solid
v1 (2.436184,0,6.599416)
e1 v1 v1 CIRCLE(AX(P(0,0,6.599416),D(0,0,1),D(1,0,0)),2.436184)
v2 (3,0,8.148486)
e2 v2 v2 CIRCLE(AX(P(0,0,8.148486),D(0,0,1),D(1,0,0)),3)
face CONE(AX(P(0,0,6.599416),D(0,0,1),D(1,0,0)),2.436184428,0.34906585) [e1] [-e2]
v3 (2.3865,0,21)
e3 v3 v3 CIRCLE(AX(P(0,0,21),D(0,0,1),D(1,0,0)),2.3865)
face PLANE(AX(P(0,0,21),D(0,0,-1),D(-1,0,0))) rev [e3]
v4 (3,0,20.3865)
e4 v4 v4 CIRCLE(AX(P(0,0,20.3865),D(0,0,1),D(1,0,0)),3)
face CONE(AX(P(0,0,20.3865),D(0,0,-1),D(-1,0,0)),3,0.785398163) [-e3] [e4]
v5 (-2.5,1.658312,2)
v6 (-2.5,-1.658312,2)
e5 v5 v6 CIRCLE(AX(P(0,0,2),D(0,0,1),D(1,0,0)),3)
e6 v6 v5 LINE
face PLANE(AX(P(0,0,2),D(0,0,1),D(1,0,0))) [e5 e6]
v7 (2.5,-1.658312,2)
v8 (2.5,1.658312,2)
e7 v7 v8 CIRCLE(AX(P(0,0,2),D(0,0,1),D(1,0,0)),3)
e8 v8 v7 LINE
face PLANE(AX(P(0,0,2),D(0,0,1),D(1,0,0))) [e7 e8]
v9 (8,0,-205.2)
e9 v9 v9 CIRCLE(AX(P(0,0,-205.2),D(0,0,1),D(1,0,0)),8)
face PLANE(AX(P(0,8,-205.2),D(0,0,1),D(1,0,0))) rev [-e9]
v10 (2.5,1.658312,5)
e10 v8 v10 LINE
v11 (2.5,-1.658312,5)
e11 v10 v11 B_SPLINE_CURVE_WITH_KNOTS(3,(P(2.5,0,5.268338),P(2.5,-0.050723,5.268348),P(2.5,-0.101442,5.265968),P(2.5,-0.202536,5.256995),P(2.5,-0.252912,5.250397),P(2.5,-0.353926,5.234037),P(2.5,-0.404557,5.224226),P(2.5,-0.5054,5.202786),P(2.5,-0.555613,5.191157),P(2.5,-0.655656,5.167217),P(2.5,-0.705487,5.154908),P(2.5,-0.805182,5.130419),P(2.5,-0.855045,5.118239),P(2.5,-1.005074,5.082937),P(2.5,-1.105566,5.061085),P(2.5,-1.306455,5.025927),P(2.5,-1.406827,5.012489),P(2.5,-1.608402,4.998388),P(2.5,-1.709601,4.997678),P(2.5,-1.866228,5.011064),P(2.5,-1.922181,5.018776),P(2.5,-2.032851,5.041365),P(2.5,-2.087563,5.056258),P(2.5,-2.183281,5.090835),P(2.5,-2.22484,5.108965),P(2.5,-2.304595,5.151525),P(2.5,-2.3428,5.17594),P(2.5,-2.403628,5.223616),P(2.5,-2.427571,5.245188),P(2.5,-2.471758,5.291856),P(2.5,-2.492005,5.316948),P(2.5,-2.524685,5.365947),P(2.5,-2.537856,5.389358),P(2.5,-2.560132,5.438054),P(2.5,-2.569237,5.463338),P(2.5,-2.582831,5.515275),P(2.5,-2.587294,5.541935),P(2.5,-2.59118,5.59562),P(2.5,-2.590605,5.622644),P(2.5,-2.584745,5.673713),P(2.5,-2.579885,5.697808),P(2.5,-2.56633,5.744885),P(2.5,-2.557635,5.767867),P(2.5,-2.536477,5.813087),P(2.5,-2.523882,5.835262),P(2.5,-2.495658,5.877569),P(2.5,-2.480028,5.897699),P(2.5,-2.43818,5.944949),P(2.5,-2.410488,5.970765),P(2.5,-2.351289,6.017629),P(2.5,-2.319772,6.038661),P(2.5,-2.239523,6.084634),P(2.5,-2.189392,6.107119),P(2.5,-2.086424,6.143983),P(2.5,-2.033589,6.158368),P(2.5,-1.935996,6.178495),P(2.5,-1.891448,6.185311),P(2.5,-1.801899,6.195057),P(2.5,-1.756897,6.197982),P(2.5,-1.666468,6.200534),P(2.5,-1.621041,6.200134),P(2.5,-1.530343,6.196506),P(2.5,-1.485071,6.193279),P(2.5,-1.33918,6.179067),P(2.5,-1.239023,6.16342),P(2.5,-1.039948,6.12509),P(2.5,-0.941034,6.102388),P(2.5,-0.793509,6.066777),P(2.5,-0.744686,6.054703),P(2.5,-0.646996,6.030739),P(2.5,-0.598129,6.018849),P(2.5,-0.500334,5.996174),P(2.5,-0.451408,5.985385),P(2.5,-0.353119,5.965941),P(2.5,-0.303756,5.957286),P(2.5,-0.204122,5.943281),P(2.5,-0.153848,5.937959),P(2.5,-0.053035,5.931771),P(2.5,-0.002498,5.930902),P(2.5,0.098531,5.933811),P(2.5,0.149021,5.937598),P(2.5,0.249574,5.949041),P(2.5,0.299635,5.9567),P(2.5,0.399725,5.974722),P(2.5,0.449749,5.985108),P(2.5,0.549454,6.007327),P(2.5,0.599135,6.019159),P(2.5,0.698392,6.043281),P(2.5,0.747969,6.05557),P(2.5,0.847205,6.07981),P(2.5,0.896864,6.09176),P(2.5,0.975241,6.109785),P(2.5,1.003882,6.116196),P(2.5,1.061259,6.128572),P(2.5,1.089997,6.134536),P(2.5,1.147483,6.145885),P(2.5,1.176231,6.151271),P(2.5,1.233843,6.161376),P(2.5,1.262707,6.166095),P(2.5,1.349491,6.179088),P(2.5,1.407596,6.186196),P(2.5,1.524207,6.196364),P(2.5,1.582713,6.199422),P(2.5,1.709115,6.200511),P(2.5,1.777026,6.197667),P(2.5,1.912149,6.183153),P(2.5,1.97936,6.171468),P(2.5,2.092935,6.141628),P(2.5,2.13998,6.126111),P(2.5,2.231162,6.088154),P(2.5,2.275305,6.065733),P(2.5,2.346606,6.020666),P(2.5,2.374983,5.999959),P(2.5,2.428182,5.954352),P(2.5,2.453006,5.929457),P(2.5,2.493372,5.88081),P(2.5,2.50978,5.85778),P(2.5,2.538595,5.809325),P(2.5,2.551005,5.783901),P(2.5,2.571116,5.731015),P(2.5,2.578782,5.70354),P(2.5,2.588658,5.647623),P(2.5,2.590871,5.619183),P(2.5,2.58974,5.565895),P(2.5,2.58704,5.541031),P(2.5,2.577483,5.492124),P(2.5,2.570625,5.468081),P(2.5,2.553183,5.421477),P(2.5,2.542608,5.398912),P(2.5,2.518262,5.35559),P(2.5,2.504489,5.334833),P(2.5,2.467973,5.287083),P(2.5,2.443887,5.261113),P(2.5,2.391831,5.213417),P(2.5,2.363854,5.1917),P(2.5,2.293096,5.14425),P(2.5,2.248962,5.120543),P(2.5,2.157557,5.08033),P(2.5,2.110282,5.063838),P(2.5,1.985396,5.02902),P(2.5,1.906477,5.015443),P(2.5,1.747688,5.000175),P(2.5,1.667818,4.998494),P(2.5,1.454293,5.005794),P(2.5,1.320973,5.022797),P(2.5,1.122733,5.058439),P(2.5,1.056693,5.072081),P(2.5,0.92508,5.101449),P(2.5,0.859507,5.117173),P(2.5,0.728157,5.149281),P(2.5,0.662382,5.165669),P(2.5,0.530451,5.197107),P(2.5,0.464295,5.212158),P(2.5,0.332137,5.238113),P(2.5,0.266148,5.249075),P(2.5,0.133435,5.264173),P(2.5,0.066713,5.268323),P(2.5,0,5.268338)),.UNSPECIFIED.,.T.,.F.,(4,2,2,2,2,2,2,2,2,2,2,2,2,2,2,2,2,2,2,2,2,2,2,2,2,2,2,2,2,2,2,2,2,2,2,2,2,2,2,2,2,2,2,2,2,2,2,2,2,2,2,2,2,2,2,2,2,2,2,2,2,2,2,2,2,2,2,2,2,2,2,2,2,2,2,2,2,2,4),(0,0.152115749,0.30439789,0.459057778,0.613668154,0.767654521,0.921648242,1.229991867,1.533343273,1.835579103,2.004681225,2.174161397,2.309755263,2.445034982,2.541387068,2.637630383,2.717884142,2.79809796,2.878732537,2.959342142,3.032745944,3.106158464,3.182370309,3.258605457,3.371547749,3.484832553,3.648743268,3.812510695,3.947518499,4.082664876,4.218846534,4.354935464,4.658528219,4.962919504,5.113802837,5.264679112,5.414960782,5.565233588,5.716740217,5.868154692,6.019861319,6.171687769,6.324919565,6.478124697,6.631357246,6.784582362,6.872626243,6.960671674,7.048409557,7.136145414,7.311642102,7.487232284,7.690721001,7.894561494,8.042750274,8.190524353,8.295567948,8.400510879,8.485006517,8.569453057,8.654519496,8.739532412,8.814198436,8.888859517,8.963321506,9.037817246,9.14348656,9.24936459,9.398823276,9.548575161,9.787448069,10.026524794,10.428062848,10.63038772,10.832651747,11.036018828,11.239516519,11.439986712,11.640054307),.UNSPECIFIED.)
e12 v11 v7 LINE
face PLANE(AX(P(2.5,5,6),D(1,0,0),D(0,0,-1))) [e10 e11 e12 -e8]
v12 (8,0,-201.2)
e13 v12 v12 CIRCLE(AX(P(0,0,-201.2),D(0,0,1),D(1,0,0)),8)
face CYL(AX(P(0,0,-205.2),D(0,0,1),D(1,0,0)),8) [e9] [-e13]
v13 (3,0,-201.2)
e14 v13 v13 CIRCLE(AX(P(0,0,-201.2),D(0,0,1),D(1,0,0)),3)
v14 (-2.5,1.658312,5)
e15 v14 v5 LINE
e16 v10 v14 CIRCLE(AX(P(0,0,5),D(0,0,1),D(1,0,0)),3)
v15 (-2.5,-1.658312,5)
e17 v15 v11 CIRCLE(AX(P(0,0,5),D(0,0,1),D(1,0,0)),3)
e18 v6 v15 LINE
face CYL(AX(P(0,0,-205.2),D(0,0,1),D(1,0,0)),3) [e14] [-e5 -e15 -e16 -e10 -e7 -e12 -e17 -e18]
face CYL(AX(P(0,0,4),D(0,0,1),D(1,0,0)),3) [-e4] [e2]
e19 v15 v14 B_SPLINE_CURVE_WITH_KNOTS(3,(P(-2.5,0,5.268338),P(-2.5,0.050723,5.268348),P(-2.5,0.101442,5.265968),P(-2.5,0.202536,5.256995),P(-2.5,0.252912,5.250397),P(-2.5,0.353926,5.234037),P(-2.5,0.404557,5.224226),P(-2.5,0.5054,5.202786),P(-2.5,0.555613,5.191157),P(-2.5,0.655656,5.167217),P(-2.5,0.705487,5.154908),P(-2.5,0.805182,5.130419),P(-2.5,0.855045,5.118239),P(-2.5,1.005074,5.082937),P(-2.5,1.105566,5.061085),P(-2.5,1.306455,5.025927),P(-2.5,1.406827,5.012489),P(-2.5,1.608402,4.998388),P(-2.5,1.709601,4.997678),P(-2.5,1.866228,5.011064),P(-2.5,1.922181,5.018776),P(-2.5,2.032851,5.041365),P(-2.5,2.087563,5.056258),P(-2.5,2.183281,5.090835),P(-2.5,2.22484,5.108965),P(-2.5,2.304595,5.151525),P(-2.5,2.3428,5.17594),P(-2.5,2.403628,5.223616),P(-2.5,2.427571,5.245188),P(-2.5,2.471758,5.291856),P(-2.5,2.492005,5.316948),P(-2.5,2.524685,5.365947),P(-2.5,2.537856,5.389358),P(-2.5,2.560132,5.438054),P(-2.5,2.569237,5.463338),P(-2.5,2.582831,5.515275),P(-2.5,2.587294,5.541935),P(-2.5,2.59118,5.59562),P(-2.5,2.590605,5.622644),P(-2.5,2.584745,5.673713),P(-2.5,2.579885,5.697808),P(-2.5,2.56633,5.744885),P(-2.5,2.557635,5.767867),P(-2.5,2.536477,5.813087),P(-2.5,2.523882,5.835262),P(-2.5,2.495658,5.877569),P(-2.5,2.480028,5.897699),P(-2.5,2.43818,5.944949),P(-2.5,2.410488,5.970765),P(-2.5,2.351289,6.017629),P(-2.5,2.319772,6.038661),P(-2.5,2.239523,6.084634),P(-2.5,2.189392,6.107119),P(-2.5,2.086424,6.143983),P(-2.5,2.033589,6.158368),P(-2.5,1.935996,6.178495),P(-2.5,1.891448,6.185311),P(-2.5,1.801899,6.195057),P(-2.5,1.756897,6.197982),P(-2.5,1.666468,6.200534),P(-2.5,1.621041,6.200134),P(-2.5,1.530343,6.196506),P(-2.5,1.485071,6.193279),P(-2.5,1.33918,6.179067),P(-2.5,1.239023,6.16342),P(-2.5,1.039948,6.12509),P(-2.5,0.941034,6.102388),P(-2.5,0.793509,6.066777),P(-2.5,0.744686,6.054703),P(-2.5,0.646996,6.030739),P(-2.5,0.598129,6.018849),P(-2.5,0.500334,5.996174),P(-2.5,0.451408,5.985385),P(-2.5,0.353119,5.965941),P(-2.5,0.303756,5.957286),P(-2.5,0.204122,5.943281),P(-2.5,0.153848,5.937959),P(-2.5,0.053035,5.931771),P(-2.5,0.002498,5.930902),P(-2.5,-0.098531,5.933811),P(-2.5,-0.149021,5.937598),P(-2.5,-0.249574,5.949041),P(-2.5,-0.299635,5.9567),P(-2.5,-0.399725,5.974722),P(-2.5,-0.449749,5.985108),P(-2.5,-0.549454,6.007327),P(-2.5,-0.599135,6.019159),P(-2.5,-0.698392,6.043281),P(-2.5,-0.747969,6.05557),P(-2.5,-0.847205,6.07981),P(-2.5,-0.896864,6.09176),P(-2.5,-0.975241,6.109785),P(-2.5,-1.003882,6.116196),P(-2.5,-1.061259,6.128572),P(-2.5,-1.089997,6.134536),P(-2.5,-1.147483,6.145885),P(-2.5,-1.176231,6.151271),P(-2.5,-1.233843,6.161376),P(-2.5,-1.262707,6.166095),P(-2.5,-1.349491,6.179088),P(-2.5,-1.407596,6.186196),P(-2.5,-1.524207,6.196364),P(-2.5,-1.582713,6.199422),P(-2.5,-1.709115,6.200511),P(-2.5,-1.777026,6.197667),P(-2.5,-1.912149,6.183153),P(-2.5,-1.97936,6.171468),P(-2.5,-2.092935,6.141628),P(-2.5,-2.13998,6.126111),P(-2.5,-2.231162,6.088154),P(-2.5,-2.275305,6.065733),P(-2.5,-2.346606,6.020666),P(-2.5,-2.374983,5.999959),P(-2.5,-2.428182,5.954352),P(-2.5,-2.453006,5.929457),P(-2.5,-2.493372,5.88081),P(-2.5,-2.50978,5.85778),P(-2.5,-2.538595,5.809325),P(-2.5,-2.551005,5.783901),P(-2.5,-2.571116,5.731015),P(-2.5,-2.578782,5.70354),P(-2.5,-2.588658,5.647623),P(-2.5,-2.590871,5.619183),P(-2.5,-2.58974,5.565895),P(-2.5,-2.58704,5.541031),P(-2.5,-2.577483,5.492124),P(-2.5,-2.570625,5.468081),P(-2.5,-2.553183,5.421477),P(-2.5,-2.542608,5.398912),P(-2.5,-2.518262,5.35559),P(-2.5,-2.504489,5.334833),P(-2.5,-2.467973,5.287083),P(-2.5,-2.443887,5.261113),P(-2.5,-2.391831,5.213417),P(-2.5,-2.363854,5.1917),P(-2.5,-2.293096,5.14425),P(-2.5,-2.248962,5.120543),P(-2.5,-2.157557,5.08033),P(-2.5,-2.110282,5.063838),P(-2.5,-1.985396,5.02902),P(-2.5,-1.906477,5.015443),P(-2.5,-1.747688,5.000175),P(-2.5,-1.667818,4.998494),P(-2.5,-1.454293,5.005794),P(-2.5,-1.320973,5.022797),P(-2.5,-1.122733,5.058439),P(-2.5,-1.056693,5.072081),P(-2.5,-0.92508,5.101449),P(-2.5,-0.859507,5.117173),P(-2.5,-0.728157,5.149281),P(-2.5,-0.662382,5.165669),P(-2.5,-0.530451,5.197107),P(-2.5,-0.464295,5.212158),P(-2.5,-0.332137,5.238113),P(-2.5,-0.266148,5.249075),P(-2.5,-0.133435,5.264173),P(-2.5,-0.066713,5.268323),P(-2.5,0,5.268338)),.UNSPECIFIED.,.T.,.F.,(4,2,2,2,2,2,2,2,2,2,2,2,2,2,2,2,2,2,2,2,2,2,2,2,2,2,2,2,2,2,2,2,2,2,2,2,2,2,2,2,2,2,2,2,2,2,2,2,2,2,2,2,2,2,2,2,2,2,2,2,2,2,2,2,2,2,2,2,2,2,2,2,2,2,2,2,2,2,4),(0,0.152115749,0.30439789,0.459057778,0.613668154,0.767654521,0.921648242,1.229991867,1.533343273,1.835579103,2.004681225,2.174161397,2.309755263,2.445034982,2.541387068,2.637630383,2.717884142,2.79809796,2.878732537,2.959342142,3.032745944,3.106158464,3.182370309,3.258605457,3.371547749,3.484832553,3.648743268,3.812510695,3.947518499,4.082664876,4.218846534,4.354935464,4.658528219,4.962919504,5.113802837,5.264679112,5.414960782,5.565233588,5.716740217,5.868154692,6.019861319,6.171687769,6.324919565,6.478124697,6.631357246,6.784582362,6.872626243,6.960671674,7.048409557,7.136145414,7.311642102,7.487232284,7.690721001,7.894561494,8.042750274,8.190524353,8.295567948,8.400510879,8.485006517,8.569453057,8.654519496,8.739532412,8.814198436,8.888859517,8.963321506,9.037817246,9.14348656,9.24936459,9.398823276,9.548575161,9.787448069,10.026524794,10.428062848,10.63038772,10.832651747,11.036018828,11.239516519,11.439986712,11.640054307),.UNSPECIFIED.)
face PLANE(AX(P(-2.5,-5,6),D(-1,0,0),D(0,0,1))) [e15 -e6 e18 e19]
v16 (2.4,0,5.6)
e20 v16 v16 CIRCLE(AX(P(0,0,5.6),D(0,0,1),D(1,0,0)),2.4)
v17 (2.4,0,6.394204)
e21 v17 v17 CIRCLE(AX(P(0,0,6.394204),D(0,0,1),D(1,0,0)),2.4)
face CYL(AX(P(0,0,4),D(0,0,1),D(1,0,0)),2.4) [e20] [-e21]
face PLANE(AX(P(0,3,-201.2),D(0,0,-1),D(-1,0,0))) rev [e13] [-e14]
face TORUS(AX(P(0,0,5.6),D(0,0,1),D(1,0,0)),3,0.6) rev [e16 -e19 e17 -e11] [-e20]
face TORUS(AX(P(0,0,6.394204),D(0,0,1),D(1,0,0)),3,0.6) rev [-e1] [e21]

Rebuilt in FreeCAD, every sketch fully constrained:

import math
import FreeCAD as App
import Part
import Sketcher
Q = App.Units.Quantity


def add_polygon(sketch, points):
    """Adds a closed chain of lines whose ends are joined by coincident constraints."""
    first, n = sketch.GeometryCount, len(points)
    for a, b in zip(points, points[1:] + points[:1]):
        sketch.addGeometry(Part.LineSegment(App.Vector(*a, 0), App.Vector(*b, 0)), False)
    for i in range(n):
        sketch.addConstraint(Sketcher.Constraint("Coincident", first + i, 2, first + (i + 1) % n, 1))

doc = App.newDocument("Part")
body = doc.addObject("PartDesign::Body", "Body")

# Sketch on YZ plane
sketch1 = body.newObject("Sketcher::SketchObject", "Sketch")
sketch1.AttachmentSupport = (doc.getObject("YZ_Plane"), [""])
sketch1.MapMode = "FlatFace"
add_polygon(sketch1, [(3, 5), (0, 5), (0, -205.2), (8, -205.2), (8, -201.2), (3, -201.2)])  # lines 0-5
sketch1.addConstraint([
    Sketcher.Constraint("Horizontal", 0),
    Sketcher.Constraint("Vertical", 1),
    Sketcher.Constraint("Horizontal", 2),
    Sketcher.Constraint("Vertical", 3),
    Sketcher.Constraint("Horizontal", 4),
    Sketcher.Constraint("Vertical", 5),
    Sketcher.Constraint("PointOnObject", 0, 2, -2),
    Sketcher.Constraint("DistanceX", 0, 2, 0, 1, Q("3 mm")),
    Sketcher.Constraint("DistanceX", 2, 1, 2, 2, Q("8 mm")),
    Sketcher.Constraint("DistanceY", 3, 1, 3, 2, Q("4 mm")),
    Sketcher.Constraint("DistanceY", 1, 2, 1, 1, Q("210.2 mm")),
    Sketcher.Constraint("DistanceY", -1, 1, 0, 2, Q("5 mm")),
])
revolution = body.newObject("PartDesign::Revolution", "Revolution")
revolution.Profile = sketch1
revolution.ReferenceAxis = (sketch1, ["V_Axis"])
revolution.Angle = 360

# Sketch on YZ plane
sketch2 = body.newObject("Sketcher::SketchObject", "Sketch001")
sketch2.AttachmentSupport = (doc.getObject("YZ_Plane"), [""])
sketch2.MapMode = "FlatFace"
sketch2.addGeometry([
    Part.LineSegment(App.Vector(2.39, 21, 0), App.Vector(0, 21, 0)),  # 0
    Part.LineSegment(App.Vector(0, 21, 0), App.Vector(0, 4, 0)),  # 1
    Part.LineSegment(App.Vector(0, 4, 0), App.Vector(3, 4, 0)),  # 2
    Part.LineSegment(App.Vector(3, 4, 0), App.Vector(3, 5, 0)),  # 3
    Part.ArcOfCircle(Part.Circle(App.Vector(3, 5.6, 0), App.Vector(0, 0, 1), 0.6), math.radians(180), math.radians(270)),  # 4
    Part.LineSegment(App.Vector(2.4, 5.6, 0), App.Vector(2.4, 6.39, 0)),  # 5
    Part.ArcOfCircle(Part.Circle(App.Vector(3, 6.39, 0), App.Vector(0, 0, 1), 0.6), math.radians(160), math.radians(180)),  # 6
    Part.LineSegment(App.Vector(2.44, 6.6, 0), App.Vector(3, 8.15, 0)),  # 7
    Part.LineSegment(App.Vector(3, 8.15, 0), App.Vector(3, 20.39, 0)),  # 8
    Part.LineSegment(App.Vector(3, 20.39, 0), App.Vector(2.39, 21, 0)),  # 9
], False)
sketch2.addConstraint([
    Sketcher.Constraint("Coincident", 0, 2, 1, 1),
    Sketcher.Constraint("Coincident", 1, 2, 2, 1),
    Sketcher.Constraint("Coincident", 2, 2, 3, 1),
    Sketcher.Constraint("Coincident", 3, 2, 4, 2),
    Sketcher.Constraint("Tangent", 4, 1, 5, 1),
    Sketcher.Constraint("Tangent", 5, 2, 6, 2),
    Sketcher.Constraint("Tangent", 6, 1, 7, 1),
    Sketcher.Constraint("Coincident", 7, 2, 8, 1),
    Sketcher.Constraint("Coincident", 8, 2, 9, 1),
    Sketcher.Constraint("Coincident", 9, 2, 0, 1),
    Sketcher.Constraint("Horizontal", 0),
    Sketcher.Constraint("Vertical", 1),
    Sketcher.Constraint("Horizontal", 2),
    Sketcher.Constraint("Vertical", 3),
    Sketcher.Constraint("Vertical", 5),
    Sketcher.Constraint("Vertical", 8),
    Sketcher.Constraint("Equal", 4, 6),
    Sketcher.Constraint("PointOnObject", 0, 2, -2),
    Sketcher.Constraint("Vertical", 6, 3, 2, 2),
    Sketcher.Constraint("Vertical", 3, 2, 7, 2),
    Sketcher.Constraint("Radius", 4, Q("0.6 mm")),
    Sketcher.Constraint("DistanceX", 2, 1, 2, 2, Q("3 mm")),
    Sketcher.Constraint("DistanceY", 1, 2, 1, 1, Q("17 mm")),
    Sketcher.Constraint("DistanceY", 3, 1, 3, 2, Q("1 mm")),
    Sketcher.Constraint("Angle", 7, Q("70 deg")),
    Sketcher.Constraint("Angle", 9, Q("135 deg")),
    Sketcher.Constraint("DistanceY", -1, 1, 0, 2, Q("21 mm")),
    Sketcher.Constraint("DistanceX", 0, 2, 0, 1, Q("2.3865 mm")),
    Sketcher.Constraint("DistanceY", 5, 1, 5, 2, Q("0.794204 mm")),
])
revolution2 = body.newObject("PartDesign::Revolution", "Revolution001")
revolution2.Profile = sketch2
revolution2.ReferenceAxis = (sketch2, ["V_Axis"])
revolution2.Angle = 360

# Sketch on XY plane
sketch3 = body.newObject("Sketcher::SketchObject", "Sketch002")
sketch3.AttachmentSupport = (doc.getObject("XY_Plane"), [""])
sketch3.MapMode = "FlatFace"
sketch3.AttachmentOffset = App.Placement(App.Vector(0, 0, 2), App.Rotation())
add_polygon(sketch3, [(-5, 10), (-5, -5), (-2.5, -5), (-2.5, 5), (2.5, 5), (2.5, -5), (5, -5), (5, 10)])  # lines 0-7
sketch3.addConstraint([
    Sketcher.Constraint("Vertical", 0),
    Sketcher.Constraint("Horizontal", 1),
    Sketcher.Constraint("Vertical", 2),
    Sketcher.Constraint("Horizontal", 3),
    Sketcher.Constraint("Vertical", 4),
    Sketcher.Constraint("Horizontal", 5),
    Sketcher.Constraint("Vertical", 6),
    Sketcher.Constraint("Horizontal", 7),
    Sketcher.Constraint("Symmetric", 1, 2, 3, 2, -1, 1),
    Sketcher.Constraint("Symmetric", 0, 2, 5, 2, -2),
    Sketcher.Constraint("Equal", 7, 2),
    Sketcher.Constraint("DistanceX", 3, 1, 3, 2, Q("5 mm")),
    Sketcher.Constraint("DistanceX", 7, 2, 7, 1, Q("10 mm")),
    Sketcher.Constraint("DistanceY", 0, 2, 0, 1, Q("15 mm")),
])
pocket1 = body.newObject("PartDesign::Pocket", "Pocket")
pocket1.Profile = sketch3
pocket1.Length = 4
pocket1.Reversed = True

doc.recompute()
